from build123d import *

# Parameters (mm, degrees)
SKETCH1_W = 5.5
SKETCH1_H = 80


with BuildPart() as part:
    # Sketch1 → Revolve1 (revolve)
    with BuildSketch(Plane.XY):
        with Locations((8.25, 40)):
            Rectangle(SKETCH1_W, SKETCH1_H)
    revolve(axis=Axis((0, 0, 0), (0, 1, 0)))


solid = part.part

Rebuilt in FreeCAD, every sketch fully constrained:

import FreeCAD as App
import Part
import Sketcher

doc = App.newDocument("Part")
params = doc.addObject("Spreadsheet::Sheet", "Params")
for row, (alias, value) in enumerate([
    ("sketch1_height", "80 mm"),
    ("sketch1_width", "5.5 mm"),
    ("revolution_angle", "360 deg"),
], start=1):
    params.set(f"A{row}", alias)
    params.set(f"B{row}", "=" + value)
    params.setAlias(f"B{row}", alias)

body = doc.addObject("PartDesign::Body", "Body")

# Sketch on XY plane
sketch1 = doc.addObject("Sketcher::SketchObject", "Sketch")
body.addObject(sketch1)
sketch1.AttachmentSupport = (doc.XY_Plane, [""])
sketch1.MapMode = "FlatFace"
sketch1.addGeometry(Part.LineSegment(App.Vector(6, 80, 0), App.Vector(6, 0, 0)), False)
sketch1.addGeometry(Part.LineSegment(App.Vector(6, 0, 0), App.Vector(11, 0, 0)), False)
sketch1.addGeometry(Part.LineSegment(App.Vector(11, 0, 0), App.Vector(11, 80, 0)), False)
sketch1.addGeometry(Part.LineSegment(App.Vector(11, 80, 0), App.Vector(6, 80, 0)), False)
sketch1.addConstraint(Sketcher.Constraint("Coincident", 0, 2, 1, 1))
sketch1.addConstraint(Sketcher.Constraint("Coincident", 1, 2, 2, 1))
sketch1.addConstraint(Sketcher.Constraint("Coincident", 2, 2, 3, 1))
sketch1.addConstraint(Sketcher.Constraint("Coincident", 3, 2, 0, 1))
sketch1.addConstraint(Sketcher.Constraint("Vertical", 0))
sketch1.addConstraint(Sketcher.Constraint("Horizontal", 1))
sketch1.addConstraint(Sketcher.Constraint("Vertical", 2))
sketch1.addConstraint(Sketcher.Constraint("Horizontal", 3))
sketch1.addConstraint(Sketcher.Constraint("PointOnObject", 0, 2, -1))
sketch1.addConstraint(Sketcher.Constraint("DistanceY", 0, 2, 0, 1, 80.0))
sketch1.addConstraint(Sketcher.Constraint("DistanceX", 1, 1, 1, 2, 5.5))
sketch1.addConstraint(Sketcher.Constraint("DistanceX", -1, 1, 1, 2, 11.0))
sketch1.setExpression("Constraints[9]", "Params.sketch1_height")
sketch1.setExpression("Constraints[10]", "Params.sketch1_width")
revolution = doc.addObject("PartDesign::Revolution", "Revolution")
body.addObject(revolution)
revolution.Profile = sketch1
revolution.ReferenceAxis = (sketch1, ["V_Axis"])
revolution.setExpression("Angle", "Params.revolution_angle")

doc.recompute()
